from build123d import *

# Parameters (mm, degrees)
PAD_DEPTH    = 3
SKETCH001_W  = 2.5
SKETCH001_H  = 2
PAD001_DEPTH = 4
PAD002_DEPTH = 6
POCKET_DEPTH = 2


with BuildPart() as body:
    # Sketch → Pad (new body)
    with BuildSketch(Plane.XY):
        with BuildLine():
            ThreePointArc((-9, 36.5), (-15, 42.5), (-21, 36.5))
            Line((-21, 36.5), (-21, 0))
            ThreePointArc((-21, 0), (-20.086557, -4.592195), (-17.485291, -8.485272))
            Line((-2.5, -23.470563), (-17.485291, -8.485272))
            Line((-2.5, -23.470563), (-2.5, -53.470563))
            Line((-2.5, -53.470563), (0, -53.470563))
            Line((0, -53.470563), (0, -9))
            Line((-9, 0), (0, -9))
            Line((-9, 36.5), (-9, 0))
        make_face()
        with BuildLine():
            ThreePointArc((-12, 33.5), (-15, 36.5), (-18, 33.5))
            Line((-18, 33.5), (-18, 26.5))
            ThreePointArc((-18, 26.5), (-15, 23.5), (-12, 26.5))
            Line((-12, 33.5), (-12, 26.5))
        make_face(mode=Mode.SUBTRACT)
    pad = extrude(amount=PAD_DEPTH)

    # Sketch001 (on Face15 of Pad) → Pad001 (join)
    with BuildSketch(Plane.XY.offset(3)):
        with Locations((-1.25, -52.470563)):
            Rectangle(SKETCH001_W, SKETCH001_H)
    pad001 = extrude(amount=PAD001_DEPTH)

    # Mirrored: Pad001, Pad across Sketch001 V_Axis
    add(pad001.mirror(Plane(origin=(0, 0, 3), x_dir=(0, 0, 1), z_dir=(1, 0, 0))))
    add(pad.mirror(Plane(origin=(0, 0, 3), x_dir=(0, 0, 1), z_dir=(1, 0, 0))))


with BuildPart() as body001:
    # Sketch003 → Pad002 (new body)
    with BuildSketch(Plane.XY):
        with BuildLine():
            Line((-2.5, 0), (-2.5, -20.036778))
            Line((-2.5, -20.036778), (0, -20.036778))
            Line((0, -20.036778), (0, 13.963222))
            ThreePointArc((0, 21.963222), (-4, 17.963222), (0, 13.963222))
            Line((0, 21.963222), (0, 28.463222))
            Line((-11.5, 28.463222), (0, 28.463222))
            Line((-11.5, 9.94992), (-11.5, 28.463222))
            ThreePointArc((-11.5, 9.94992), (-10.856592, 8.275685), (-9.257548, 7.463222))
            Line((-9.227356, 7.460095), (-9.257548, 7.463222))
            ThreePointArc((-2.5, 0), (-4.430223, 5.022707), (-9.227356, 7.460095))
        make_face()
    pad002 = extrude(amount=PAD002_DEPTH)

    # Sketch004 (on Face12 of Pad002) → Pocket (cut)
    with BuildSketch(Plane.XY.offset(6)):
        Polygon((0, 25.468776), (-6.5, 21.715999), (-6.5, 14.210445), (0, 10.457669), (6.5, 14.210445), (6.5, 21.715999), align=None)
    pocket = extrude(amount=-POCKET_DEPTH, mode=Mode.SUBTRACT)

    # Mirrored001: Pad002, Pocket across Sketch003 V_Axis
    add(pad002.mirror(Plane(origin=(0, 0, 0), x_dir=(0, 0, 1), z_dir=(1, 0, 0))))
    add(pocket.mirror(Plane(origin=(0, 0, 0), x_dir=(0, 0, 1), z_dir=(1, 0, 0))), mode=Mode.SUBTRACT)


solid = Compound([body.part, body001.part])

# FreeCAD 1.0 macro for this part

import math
import FreeCAD as App
import Part
import Sketcher

V = App.Vector
Q = App.Units.Quantity


def add_polygon(sketch, points):
    """Adds a closed chain of lines whose ends are joined by coincident constraints."""
    first, n = sketch.GeometryCount, len(points)
    for a, b in zip(points, points[1:] + points[:1]):
        sketch.addGeometry(Part.LineSegment(App.Vector(*a, 0), App.Vector(*b, 0)), False)
    for i in range(n):
        sketch.addConstraint(Sketcher.Constraint("Coincident", first + i, 2, first + (i + 1) % n, 1))

doc = App.newDocument("Part")
body = doc.addObject("PartDesign::Body", "Body")

sketch1 = body.newObject("Sketcher::SketchObject", "Sketch")
sketch1.AttachmentSupport = (doc.getObject("XY_Plane"), [""])
sketch1.MapMode = "FlatFace"
sketch1.addGeometry(Part.ArcOfCircle(Part.Circle(V(-15, 36.5, 0), V(0, 0, 1), 6), math.radians(0), math.radians(180)), False)
sketch1.addGeometry(Part.LineSegment(V(-21, 36.5, 0), V(-21, 0, 0)), False)
sketch1.addGeometry(Part.ArcOfCircle(Part.Circle(V(-8.999999, 0, 0), V(0, 0, 1), 12.000001), math.radians(-180), math.radians(-135.000066)), False)
sketch1.addGeometry(Part.LineSegment(V(-17.485291, -8.485272, 0), V(-2.5, -23.470563, 0)), False)
sketch1.addGeometry(Part.LineSegment(V(-2.5, -23.470563, 0), V(-2.5, -53.470563, 0)), False)
sketch1.addGeometry(Part.LineSegment(V(-2.5, -53.470563, 0), V(0, -53.470563, 0)), False)
sketch1.addGeometry(Part.LineSegment(V(0, -53.470563, 0), V(0, -9, 0)), False)
sketch1.addGeometry(Part.LineSegment(V(0, -9, 0), V(-9, 0, 0)), False)
sketch1.addGeometry(Part.LineSegment(V(-9, 0, 0), V(-9, 36.5, 0)), False)
sketch1.addGeometry(Part.ArcOfCircle(Part.Circle(V(-15, 33.5, 0), V(0, 0, 1), 3), math.radians(0), math.radians(180)), False)
sketch1.addGeometry(Part.LineSegment(V(-12, 33.5, 0), V(-12, 26.5, 0)), False)
sketch1.addGeometry(Part.ArcOfCircle(Part.Circle(V(-15, 26.5, 0), V(0, 0, 1), 3), math.radians(180), math.radians(360)), False)
sketch1.addGeometry(Part.LineSegment(V(-18, 26.5, 0), V(-18, 33.5, 0)), False)
sketch1.addConstraint(Sketcher.Constraint("Tangent", 0, 2, 1, 1))
sketch1.addConstraint(Sketcher.Constraint("Tangent", 1, 2, 2, 1))
sketch1.addConstraint(Sketcher.Constraint("Tangent", 2, 2, 3, 1))
sketch1.addConstraint(Sketcher.Constraint("Coincident", 3, 2, 4, 1))
sketch1.addConstraint(Sketcher.Constraint("Coincident", 4, 2, 5, 1))
sketch1.addConstraint(Sketcher.Constraint("Coincident", 5, 2, 6, 1))
sketch1.addConstraint(Sketcher.Constraint("Coincident", 6, 2, 7, 1))
sketch1.addConstraint(Sketcher.Constraint("Coincident", 7, 2, 8, 1))
sketch1.addConstraint(Sketcher.Constraint("Tangent", 8, 2, 0, 1))
sketch1.addConstraint(Sketcher.Constraint("Tangent", 9, 1, 10, 1))
sketch1.addConstraint(Sketcher.Constraint("Tangent", 10, 2, 11, 2))
sketch1.addConstraint(Sketcher.Constraint("Tangent", 11, 1, 12, 1))
sketch1.addConstraint(Sketcher.Constraint("Tangent", 12, 2, 9, 2))
sketch1.addConstraint(Sketcher.Constraint("Vertical", 1))
sketch1.addConstraint(Sketcher.Constraint("Vertical", 4))
sketch1.addConstraint(Sketcher.Constraint("Horizontal", 5))
sketch1.addConstraint(Sketcher.Constraint("Vertical", 6))
sketch1.addConstraint(Sketcher.Constraint("Vertical", 8))
sketch1.addConstraint(Sketcher.Constraint("Vertical", 10))
sketch1.addConstraint(Sketcher.Constraint("Vertical", 12))
sketch1.addConstraint(Sketcher.Constraint("Coincident", 7, 2, 2, 3))
sketch1.addConstraint(Sketcher.Constraint("PointOnObject", 2, 3, -1))
sketch1.addConstraint(Sketcher.Constraint("PointOnObject", 5, 2, -2))
sketch1.addConstraint(Sketcher.Constraint("Parallel", 3, 7))
sketch1.addConstraint(Sketcher.Constraint("Vertical", 0, 3, 9, 3))
sketch1.addConstraint(Sketcher.Constraint("Radius", 0, 6.0))
sketch1.addConstraint(Sketcher.Constraint("Radius", 9, 3.0))
sketch1.addConstraint(Sketcher.Constraint("DistanceY", 4, 2, 4, 1, 30.0))
sketch1.addConstraint(Sketcher.Constraint("DistanceY", 10, 2, 10, 1, 7.0))
sketch1.addConstraint(Sketcher.Constraint("Angle", 3, Q("-45 deg")))
sketch1.addConstraint(Sketcher.Constraint("DistanceX", 5, 1, 5, 2, 2.5))
sketch1.addConstraint(Sketcher.Constraint("DistanceY", 1, 2, 1, 1, 36.5))
sketch1.addConstraint(Sketcher.Constraint("DistanceX", 0, 3, -1, 1, 15.0))
sketch1.addConstraint(Sketcher.Constraint("DistanceY", 9, 3, 0, 3, 3.0))
pad1 = body.newObject("PartDesign::Pad", "Pad")
pad1.Profile = sketch1
pad1.Length = 3

sketch2 = body.newObject("Sketcher::SketchObject", "Sketch001")
sketch2.AttachmentSupport = (doc.getObject("XY_Plane"), [""])
sketch2.MapMode = "FlatFace"
sketch2.AttachmentOffset = App.Placement(V(0, 0, 3), App.Rotation())
add_polygon(sketch2, [(-2.5, -51.470563), (-2.5, -53.470563), (0, -53.470563), (0, -51.470563)])
sketch2.addConstraint(Sketcher.Constraint("Vertical", 0))
sketch2.addConstraint(Sketcher.Constraint("Horizontal", 1))
sketch2.addConstraint(Sketcher.Constraint("Vertical", 2))
sketch2.addConstraint(Sketcher.Constraint("Horizontal", 3))
sketch2.addConstraint(Sketcher.Constraint("PointOnObject", 1, 2, -2))
sketch2.addConstraint(Sketcher.Constraint("DistanceY", 0, 2, 0, 1, 2.0))
sketch2.addConstraint(Sketcher.Constraint("DistanceX", 1, 1, 1, 2, 2.5))
sketch2.addConstraint(Sketcher.Constraint("DistanceY", 0, 2, -1, 1, 53.470563))
pad2 = body.newObject("PartDesign::Pad", "Pad001")
pad2.Profile = sketch2
pad2.Length = 4
doc.recompute()

mirrored = body.newObject("PartDesign::Mirrored", "Mirrored")
mirrored.Originals = [pad2, pad1]
mirrored.MirrorPlane = (doc.getObject("YZ_Plane"), [""])
body.Tip = mirrored
body2 = doc.addObject("PartDesign::Body", "Body001")

sketch3 = body2.newObject("Sketcher::SketchObject", "Sketch002")
sketch3.AttachmentSupport = (doc.getObject("XY_Plane001"), [""])
sketch3.MapMode = "FlatFace"
sketch3.addGeometry(Part.LineSegment(V(-2.5, 0, 0), V(-2.5, -20.036778, 0)), False)
sketch3.addGeometry(Part.LineSegment(V(-2.5, -20.036778, 0), V(0, -20.036778, 0)), False)
sketch3.addGeometry(Part.LineSegment(V(0, -20.036778, 0), V(0, 13.963222, 0)), False)
sketch3.addGeometry(Part.ArcOfCircle(Part.Circle(V(0, 17.963222, 0), V(0, 0, 1), 4), math.radians(90), math.radians(270)), False)
sketch3.addGeometry(Part.LineSegment(V(0, 21.963222, 0), V(0, 28.463222, 0)), False)
sketch3.addGeometry(Part.LineSegment(V(0, 28.463222, 0), V(-11.5, 28.463222, 0)), False)
sketch3.addGeometry(Part.LineSegment(V(-11.5, 28.463222, 0), V(-11.5, 9.94992, 0)), False)
sketch3.addGeometry(Part.ArcOfCircle(Part.Circle(V(-8.999999, 9.949921, 0), V(0, 0, 1), 2.500001), math.radians(-179.999968), math.radians(-95.913079)), False)
sketch3.addGeometry(Part.LineSegment(V(-9.257548, 7.463222, 0), V(-9.227356, 7.460095, 0)), False)
sketch3.addGeometry(Part.ArcOfCircle(Part.Circle(V(-9.999999, 0, 0), V(0, 0, 1), 7.499999), math.radians(-0.000003), math.radians(84.086949)), False)
sketch3.addConstraint(Sketcher.Constraint("Coincident", 0, 2, 1, 1))
sketch3.addConstraint(Sketcher.Constraint("Coincident", 1, 2, 2, 1))
sketch3.addConstraint(Sketcher.Constraint("Coincident", 2, 2, 3, 2))
sketch3.addConstraint(Sketcher.Constraint("Coincident", 3, 1, 4, 1))
sketch3.addConstraint(Sketcher.Constraint("Coincident", 4, 2, 5, 1))
sketch3.addConstraint(Sketcher.Constraint("Coincident", 5, 2, 6, 1))
sketch3.addConstraint(Sketcher.Constraint("Coincident", 6, 2, 7, 1))
sketch3.addConstraint(Sketcher.Constraint("Coincident", 7, 2, 8, 1))
sketch3.addConstraint(Sketcher.Constraint("Coincident", 8, 2, 9, 2))
sketch3.addConstraint(Sketcher.Constraint("Coincident", 9, 1, 0, 1))
sketch3.addConstraint(Sketcher.Constraint("Vertical", 0))
sketch3.addConstraint(Sketcher.Constraint("Horizontal", 1))
sketch3.addConstraint(Sketcher.Constraint("Vertical", 2))
sketch3.addConstraint(Sketcher.Constraint("Vertical", 4))
sketch3.addConstraint(Sketcher.Constraint("Horizontal", 5))
sketch3.addConstraint(Sketcher.Constraint("Vertical", 6))
sketch3.addConstraint(Sketcher.Constraint("PointOnObject", 3, 3, -2))
sketch3.addConstraint(Sketcher.Constraint("PointOnObject", 9, 3, -1))
sketch3.addConstraint(Sketcher.Constraint("PointOnObject", 1, 2, -2))
sketch3.addConstraint(Sketcher.Constraint("PointOnObject", 3, 1, -2))
sketch3.addConstraint(Sketcher.Constraint("PointOnObject", 9, 1, -1))
sketch3.addConstraint(Sketcher.Constraint("Radius", 3, 4.0))
sketch3.addConstraint(Sketcher.Constraint("Radius", 7, 2.500001))
sketch3.addConstraint(Sketcher.Constraint("Radius", 9, 7.499999))
sketch3.addConstraint(Sketcher.Constraint("DistanceY", 2, 1, 2, 2, 34.0))
sketch3.addConstraint(Sketcher.Constraint("DistanceX", 1, 1, 1, 2, 2.5))
sketch3.addConstraint(Sketcher.Constraint("DistanceX", 5, 2, 5, 1, 11.5))
sketch3.addConstraint(Sketcher.Constraint("DistanceY", 4, 1, 4, 2, 6.5))
sketch3.addConstraint(Sketcher.Constraint("DistanceY", 7, 2, 2, 2, 6.5))
sketch3.addConstraint(Sketcher.Constraint("DistanceY", 6, 2, 6, 1, 18.513302))
sketch3.addConstraint(Sketcher.Constraint("DistanceY", 0, 2, 0, 1, 20.036778))
sketch3.addConstraint(Sketcher.Constraint("DistanceY", 7, 3, 3, 3, 8.013301))
sketch3.addConstraint(Sketcher.Constraint("DistanceX", 7, 2, 8, 2, 0.030192))
pad3 = body2.newObject("PartDesign::Pad", "Pad002")
pad3.Profile = sketch3
pad3.Length = 6

sketch4 = body2.newObject("Sketcher::SketchObject", "Sketch003")
sketch4.AttachmentSupport = (doc.getObject("XY_Plane001"), [""])
sketch4.MapMode = "FlatFace"
sketch4.AttachmentOffset = App.Placement(V(0, 0, 6), App.Rotation())
add_polygon(sketch4, [(0, 25.468776), (-6.5, 21.715999), (-6.5, 14.210445), (0, 10.457669), (6.5, 14.210445), (6.5, 21.715999)])
sketch4.addConstraint(Sketcher.Constraint("Vertical", 1))
sketch4.addConstraint(Sketcher.Constraint("Vertical", 4))
sketch4.addConstraint(Sketcher.Constraint("Symmetric", 1, 2, 3, 2, -2))
sketch4.addConstraint(Sketcher.Constraint("PointOnObject", 2, 2, -2))
sketch4.addConstraint(Sketcher.Constraint("PointOnObject", 5, 2, -2))
sketch4.addConstraint(Sketcher.Constraint("Parallel", 0, 3))
sketch4.addConstraint(Sketcher.Constraint("Parallel", 2, 5))
sketch4.addConstraint(Sketcher.Constraint("Angle", 0, Q("-149.999998 deg")))
sketch4.addConstraint(Sketcher.Constraint("DistanceX", 1, 2, 3, 2, 13.0))
sketch4.addConstraint(Sketcher.Constraint("DistanceY", -1, 1, 0, 2, 21.715999))
sketch4.addConstraint(Sketcher.Constraint("DistanceY", 1, 2, 1, 1, 7.505554))
pocket1 = body2.newObject("PartDesign::Pocket", "Pocket")
pocket1.Profile = sketch4
pocket1.Length = 2
doc.recompute()

mirrored2 = body2.newObject("PartDesign::Mirrored", "Mirrored001")
mirrored2.Originals = [pad3, pocket1]
mirrored2.MirrorPlane = (doc.getObject("YZ_Plane001"), [""])
body2.Tip = mirrored2

doc.recompute()
